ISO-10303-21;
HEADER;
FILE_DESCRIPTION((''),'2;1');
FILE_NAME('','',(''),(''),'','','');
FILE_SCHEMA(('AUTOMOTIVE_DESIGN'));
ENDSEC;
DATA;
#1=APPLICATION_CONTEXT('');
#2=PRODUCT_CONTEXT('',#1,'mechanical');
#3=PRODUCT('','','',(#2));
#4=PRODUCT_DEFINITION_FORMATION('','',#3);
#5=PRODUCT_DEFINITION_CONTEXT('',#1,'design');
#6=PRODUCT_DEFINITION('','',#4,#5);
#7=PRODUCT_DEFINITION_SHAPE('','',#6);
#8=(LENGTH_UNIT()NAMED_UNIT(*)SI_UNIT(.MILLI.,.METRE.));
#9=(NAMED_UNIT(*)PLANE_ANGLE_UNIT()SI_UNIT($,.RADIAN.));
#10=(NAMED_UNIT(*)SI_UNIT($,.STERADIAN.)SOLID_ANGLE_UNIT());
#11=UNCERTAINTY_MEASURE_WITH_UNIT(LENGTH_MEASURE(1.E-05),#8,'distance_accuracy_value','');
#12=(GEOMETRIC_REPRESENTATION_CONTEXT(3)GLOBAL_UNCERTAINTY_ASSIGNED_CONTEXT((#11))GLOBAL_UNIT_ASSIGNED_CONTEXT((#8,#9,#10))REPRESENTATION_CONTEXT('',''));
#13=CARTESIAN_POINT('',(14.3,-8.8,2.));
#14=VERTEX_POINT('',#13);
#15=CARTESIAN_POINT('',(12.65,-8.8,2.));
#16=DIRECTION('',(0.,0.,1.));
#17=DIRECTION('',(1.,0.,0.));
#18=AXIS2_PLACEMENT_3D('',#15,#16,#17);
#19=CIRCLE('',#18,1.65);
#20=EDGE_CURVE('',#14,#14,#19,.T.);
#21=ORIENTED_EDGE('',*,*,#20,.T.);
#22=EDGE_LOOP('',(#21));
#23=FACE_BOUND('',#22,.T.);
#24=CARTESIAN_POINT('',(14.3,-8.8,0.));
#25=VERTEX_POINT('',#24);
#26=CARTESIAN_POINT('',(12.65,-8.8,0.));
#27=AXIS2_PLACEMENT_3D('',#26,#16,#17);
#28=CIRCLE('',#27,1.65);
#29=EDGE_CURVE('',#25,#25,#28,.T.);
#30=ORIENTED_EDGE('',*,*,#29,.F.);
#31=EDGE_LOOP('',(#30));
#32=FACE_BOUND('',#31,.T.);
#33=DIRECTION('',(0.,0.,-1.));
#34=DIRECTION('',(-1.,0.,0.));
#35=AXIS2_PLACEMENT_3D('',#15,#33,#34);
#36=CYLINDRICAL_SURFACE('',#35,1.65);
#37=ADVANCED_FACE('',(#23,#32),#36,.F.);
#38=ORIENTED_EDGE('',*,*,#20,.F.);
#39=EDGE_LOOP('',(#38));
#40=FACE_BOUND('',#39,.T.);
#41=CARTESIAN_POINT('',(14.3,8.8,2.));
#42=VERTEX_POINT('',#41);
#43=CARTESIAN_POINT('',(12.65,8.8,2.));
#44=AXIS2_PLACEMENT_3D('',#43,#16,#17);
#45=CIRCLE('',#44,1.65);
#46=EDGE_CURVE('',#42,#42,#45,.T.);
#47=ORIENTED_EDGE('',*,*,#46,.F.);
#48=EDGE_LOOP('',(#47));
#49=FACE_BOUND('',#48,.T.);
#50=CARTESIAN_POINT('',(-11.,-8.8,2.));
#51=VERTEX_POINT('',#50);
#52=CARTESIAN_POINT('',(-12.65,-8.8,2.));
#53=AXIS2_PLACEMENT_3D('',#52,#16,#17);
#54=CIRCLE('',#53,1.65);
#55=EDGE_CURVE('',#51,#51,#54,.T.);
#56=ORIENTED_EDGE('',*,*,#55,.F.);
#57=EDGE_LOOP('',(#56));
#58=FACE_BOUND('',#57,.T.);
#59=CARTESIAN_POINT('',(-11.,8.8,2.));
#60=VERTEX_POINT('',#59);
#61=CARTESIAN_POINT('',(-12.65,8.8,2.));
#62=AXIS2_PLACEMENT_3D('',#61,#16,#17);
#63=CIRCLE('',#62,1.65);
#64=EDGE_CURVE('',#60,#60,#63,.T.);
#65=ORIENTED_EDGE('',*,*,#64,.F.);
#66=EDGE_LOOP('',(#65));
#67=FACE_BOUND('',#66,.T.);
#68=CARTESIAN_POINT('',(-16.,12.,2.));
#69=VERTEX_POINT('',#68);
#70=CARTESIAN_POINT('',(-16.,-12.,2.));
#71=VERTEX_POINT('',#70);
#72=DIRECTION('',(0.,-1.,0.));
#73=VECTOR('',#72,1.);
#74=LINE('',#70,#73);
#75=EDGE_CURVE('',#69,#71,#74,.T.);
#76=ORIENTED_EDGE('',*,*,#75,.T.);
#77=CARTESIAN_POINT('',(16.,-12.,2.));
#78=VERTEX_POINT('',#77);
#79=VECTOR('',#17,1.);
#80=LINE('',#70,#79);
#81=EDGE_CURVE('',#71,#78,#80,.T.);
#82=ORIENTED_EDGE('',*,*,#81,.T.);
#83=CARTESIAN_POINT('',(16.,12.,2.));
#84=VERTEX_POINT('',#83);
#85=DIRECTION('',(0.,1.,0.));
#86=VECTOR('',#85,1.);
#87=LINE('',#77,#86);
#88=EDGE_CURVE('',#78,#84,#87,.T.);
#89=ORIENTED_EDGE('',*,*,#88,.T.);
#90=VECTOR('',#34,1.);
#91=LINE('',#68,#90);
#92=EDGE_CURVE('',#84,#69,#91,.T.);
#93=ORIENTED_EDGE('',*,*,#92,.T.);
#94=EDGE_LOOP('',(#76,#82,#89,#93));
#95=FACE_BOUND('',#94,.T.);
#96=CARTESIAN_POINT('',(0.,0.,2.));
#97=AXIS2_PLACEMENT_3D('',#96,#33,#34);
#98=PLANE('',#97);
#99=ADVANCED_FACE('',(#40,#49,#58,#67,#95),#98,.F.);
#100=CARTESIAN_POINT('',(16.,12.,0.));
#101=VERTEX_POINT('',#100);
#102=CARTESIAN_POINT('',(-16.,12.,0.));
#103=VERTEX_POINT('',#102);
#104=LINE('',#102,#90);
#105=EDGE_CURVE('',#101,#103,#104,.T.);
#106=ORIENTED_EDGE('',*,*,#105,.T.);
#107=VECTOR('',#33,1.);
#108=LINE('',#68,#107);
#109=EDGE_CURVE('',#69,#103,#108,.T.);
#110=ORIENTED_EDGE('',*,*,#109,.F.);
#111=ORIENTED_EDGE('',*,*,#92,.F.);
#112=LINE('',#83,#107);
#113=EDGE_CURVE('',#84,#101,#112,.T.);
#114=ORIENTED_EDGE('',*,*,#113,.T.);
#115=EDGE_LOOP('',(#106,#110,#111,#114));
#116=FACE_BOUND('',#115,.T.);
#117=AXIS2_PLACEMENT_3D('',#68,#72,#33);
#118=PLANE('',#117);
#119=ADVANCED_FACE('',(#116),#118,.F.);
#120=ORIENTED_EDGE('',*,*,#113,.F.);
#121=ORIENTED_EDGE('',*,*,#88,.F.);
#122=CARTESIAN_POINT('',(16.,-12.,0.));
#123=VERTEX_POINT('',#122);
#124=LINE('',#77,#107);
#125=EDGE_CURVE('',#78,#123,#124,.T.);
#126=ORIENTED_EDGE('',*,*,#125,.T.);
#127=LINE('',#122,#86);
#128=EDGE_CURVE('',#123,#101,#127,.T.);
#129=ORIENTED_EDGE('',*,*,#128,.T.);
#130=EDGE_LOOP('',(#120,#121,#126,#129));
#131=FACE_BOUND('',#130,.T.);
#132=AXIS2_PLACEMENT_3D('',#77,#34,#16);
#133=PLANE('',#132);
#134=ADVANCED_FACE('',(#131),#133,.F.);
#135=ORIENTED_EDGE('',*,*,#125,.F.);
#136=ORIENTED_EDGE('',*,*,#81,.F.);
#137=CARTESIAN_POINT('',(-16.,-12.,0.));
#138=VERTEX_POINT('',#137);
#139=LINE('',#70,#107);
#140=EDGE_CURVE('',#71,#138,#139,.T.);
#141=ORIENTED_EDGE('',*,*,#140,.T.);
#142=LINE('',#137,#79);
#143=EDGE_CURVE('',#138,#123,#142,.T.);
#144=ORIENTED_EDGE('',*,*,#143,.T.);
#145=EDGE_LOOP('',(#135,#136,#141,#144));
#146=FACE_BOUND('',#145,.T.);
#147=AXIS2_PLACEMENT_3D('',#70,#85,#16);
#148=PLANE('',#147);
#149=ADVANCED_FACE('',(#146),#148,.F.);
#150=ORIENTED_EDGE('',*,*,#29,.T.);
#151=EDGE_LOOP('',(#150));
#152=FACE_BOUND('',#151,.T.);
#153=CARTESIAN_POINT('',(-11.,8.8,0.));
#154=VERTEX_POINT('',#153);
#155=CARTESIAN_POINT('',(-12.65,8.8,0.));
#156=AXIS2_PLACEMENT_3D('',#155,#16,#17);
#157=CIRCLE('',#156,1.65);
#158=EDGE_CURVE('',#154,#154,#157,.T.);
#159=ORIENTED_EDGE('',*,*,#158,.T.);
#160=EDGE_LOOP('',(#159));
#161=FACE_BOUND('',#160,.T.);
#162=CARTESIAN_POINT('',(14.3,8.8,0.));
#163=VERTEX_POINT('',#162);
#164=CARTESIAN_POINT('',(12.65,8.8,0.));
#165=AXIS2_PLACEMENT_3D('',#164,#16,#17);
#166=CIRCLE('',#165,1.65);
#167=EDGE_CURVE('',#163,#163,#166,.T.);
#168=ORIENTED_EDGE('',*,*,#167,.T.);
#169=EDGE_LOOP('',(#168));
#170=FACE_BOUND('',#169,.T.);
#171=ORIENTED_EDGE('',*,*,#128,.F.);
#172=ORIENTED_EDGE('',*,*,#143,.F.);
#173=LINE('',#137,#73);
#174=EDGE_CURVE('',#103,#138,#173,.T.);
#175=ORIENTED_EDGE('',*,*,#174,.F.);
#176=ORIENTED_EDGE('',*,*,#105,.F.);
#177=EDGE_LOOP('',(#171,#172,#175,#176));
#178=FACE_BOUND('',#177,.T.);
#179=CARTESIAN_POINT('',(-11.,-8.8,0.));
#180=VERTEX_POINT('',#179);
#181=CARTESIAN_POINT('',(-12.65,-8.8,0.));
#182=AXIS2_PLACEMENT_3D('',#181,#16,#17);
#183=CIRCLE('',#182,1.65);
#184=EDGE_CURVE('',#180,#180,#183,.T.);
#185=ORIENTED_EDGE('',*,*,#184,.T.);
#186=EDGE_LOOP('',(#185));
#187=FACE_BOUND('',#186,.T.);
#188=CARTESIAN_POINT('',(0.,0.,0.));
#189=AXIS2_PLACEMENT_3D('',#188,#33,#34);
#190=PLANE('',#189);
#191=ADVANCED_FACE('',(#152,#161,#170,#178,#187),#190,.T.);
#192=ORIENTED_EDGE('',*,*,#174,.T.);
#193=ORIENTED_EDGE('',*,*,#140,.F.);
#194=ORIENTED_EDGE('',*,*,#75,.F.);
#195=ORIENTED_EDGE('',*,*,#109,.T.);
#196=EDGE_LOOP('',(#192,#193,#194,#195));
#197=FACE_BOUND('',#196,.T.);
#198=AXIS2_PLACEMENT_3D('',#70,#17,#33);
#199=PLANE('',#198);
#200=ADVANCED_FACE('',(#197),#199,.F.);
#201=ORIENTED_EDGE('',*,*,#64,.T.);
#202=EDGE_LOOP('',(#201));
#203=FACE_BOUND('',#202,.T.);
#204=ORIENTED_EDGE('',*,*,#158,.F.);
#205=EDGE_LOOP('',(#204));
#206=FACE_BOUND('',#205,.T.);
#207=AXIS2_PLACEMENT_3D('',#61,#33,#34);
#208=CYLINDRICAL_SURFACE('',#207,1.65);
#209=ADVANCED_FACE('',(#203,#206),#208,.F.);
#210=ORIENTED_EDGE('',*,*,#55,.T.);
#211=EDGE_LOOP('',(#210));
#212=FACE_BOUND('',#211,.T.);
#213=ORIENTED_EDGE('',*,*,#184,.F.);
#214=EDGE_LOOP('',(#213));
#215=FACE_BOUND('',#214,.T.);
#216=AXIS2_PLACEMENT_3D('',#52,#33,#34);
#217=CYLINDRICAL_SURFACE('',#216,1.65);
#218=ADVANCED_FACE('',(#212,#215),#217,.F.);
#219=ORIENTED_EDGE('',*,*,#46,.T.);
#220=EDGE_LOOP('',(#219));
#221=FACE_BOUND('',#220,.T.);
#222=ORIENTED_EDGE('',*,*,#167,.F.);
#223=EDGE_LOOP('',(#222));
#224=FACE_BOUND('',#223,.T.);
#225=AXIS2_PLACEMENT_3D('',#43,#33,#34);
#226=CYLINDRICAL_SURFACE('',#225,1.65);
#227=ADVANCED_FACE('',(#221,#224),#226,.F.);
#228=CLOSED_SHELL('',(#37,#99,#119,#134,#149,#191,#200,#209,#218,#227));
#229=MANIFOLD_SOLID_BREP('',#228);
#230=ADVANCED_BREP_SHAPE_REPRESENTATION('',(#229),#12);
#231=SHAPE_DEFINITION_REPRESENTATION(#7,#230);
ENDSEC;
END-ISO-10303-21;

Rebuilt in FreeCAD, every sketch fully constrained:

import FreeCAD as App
import Part
import Sketcher
from FreeCAD import Vector

doc = App.newDocument("Part")
params = doc.addObject("Spreadsheet::Sheet", "Params")
for row, (alias, value) in enumerate([
    ("sketch1_diameter", "3.3 mm"),
    ("sketch1_width", "32 mm"),
    ("sketch1_height", "24 mm"),
    ("pad1_length", "2 mm"),
], start=1):
    params.set(f"A{row}", alias)
    params.set(f"B{row}", "=" + value)
    params.setAlias(f"B{row}", alias)

body = doc.addObject("PartDesign::Body", "Body")

sketch1 = body.newObject("Sketcher::SketchObject", "Sketch")
sketch1.AttachmentSupport = (doc.getObject("XY_Plane"), [""])
sketch1.MapMode = "FlatFace"
sketch1.addGeometry(Part.LineSegment(Vector(-16, 12, 0), Vector(-16, -12, 0)), False)
sketch1.addGeometry(Part.LineSegment(Vector(-16, -12, 0), Vector(16, -12, 0)), False)
sketch1.addGeometry(Part.LineSegment(Vector(16, -12, 0), Vector(16, 12, 0)), False)
sketch1.addGeometry(Part.LineSegment(Vector(16, 12, 0), Vector(-16, 12, 0)), False)
sketch1.addGeometry(Part.Circle(Vector(-12.7, -8.8, 0), Vector(0, 0, 1), 1.6), False)
sketch1.addGeometry(Part.Circle(Vector(12.7, -8.8, 0), Vector(0, 0, 1), 1.6), False)
sketch1.addGeometry(Part.Circle(Vector(-12.7, 8.8, 0), Vector(0, 0, 1), 1.6), False)
sketch1.addGeometry(Part.Circle(Vector(12.7, 8.8, 0), Vector(0, 0, 1), 1.6), False)
sketch1.addConstraint(Sketcher.Constraint("Coincident", 0, 2, 1, 1))
sketch1.addConstraint(Sketcher.Constraint("Coincident", 1, 2, 2, 1))
sketch1.addConstraint(Sketcher.Constraint("Coincident", 2, 2, 3, 1))
sketch1.addConstraint(Sketcher.Constraint("Coincident", 3, 2, 0, 1))
sketch1.addConstraint(Sketcher.Constraint("Vertical", 0))
sketch1.addConstraint(Sketcher.Constraint("Horizontal", 1))
sketch1.addConstraint(Sketcher.Constraint("Vertical", 2))
sketch1.addConstraint(Sketcher.Constraint("Horizontal", 3))
sketch1.addConstraint(Sketcher.Constraint("Equal", 4, 5))
sketch1.addConstraint(Sketcher.Constraint("Equal", 5, 6))
sketch1.addConstraint(Sketcher.Constraint("Equal", 6, 7))
sketch1.addConstraint(Sketcher.Constraint("Symmetric", 5, 3, 6, 3, -1, 1))
sketch1.addConstraint(Sketcher.Constraint("Symmetric", 4, 3, 7, 3, -1, 1))
sketch1.addConstraint(Sketcher.Constraint("Symmetric", 0, 2, 2, 2, -1, 1))
sketch1.addConstraint(Sketcher.Constraint("Symmetric", 4, 3, 5, 3, -2))
sketch1.addConstraint(Sketcher.Constraint("Diameter", 4, 3.3))
sketch1.addConstraint(Sketcher.Constraint("DistanceX", 1, 1, 1, 2, 32.0))
sketch1.addConstraint(Sketcher.Constraint("DistanceY", 0, 2, 0, 1, 24.0))
sketch1.addConstraint(Sketcher.Constraint("DistanceY", 4, 3, -1, 1, 8.8))
sketch1.addConstraint(Sketcher.Constraint("DistanceX", 4, 3, 5, 3, 25.3))
sketch1.setExpression("Constraints[15]", "Params.sketch1_diameter")
sketch1.setExpression("Constraints[16]", "Params.sketch1_width")
sketch1.setExpression("Constraints[17]", "Params.sketch1_height")
pad1 = body.newObject("PartDesign::Pad", "Pad")
pad1.Profile = sketch1
pad1.setExpression("Length", "Params.pad1_length")

doc.recompute()
